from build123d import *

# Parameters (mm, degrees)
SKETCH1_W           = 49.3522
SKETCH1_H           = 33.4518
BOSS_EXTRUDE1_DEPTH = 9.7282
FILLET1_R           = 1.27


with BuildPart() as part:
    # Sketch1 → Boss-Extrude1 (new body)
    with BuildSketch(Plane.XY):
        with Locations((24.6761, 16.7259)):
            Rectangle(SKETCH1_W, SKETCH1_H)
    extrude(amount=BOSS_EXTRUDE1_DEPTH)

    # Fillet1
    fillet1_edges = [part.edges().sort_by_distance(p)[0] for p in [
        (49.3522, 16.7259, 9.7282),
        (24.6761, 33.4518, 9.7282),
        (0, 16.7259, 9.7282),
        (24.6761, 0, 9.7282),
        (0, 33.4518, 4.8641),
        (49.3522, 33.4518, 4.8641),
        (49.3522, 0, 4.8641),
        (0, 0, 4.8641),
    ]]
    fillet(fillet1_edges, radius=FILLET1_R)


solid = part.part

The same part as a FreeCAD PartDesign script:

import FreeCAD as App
import Part
import Sketcher
Q = App.Units.Quantity


def edges_at(feature, points):
    """Names of the edges that pass closest to the given points."""
    edges = feature.Shape.Edges
    near = lambda p: min(range(len(edges)), key=lambda i: edges[i].distToShape(Part.Vertex(*p))[0])
    return sorted({f"Edge{near(p) + 1}" for p in points})

doc = App.newDocument("Part")
body = doc.addObject("PartDesign::Body", "Body")

# Sketch on XY plane
sketch1 = body.newObject("Sketcher::SketchObject", "Sketch")
sketch1.AttachmentSupport = (doc.getObject("XY_Plane"), [""])
sketch1.MapMode = "FlatFace"
sketch1.addGeometry([
    Part.LineSegment(App.Vector(0, 33.4518, 0), App.Vector(0, 0, 0)),
    Part.LineSegment(App.Vector(0, 0, 0), App.Vector(49.3522, 0, 0)),
    Part.LineSegment(App.Vector(49.3522, 0, 0), App.Vector(49.3522, 33.4518, 0)),
    Part.LineSegment(App.Vector(49.3522, 33.4518, 0), App.Vector(0, 33.4518, 0)),
], False)
sketch1.addConstraint([
    Sketcher.Constraint("Coincident", 0, 2, 1, 1),
    Sketcher.Constraint("Coincident", 1, 2, 2, 1),
    Sketcher.Constraint("Coincident", 2, 2, 3, 1),
    Sketcher.Constraint("Coincident", 3, 2, 0, 1),
    Sketcher.Constraint("Vertical", 0),
    Sketcher.Constraint("Horizontal", 1),
    Sketcher.Constraint("Vertical", 2),
    Sketcher.Constraint("Horizontal", 3),
    Sketcher.Constraint("Coincident", 0, 2, -1, 1),
    Sketcher.Constraint("DistanceX", 1, 1, 1, 2, Q("1.943 in")),
    Sketcher.Constraint("DistanceY", 0, 2, 0, 1, Q("1.317 in")),
])
pad1 = body.newObject("PartDesign::Pad", "Pad")
pad1.Profile = sketch1
pad1.Length = Q("0.383 in")
doc.recompute()

fillet = body.newObject("PartDesign::Fillet", "Fillet")
fillet.Base = (pad1, edges_at(pad1, [
    (49.352, 16.726, 9.728),
    (24.676, 33.452, 9.728),
    (0, 16.726, 9.728),
    (24.676, 0, 9.728),
    (0, 33.452, 4.864),
    (49.352, 33.452, 4.864),
    (49.352, 0, 4.864),
    (0, 0, 4.864),
]))
fillet.Radius = Q("0.05 in")

doc.recompute()
